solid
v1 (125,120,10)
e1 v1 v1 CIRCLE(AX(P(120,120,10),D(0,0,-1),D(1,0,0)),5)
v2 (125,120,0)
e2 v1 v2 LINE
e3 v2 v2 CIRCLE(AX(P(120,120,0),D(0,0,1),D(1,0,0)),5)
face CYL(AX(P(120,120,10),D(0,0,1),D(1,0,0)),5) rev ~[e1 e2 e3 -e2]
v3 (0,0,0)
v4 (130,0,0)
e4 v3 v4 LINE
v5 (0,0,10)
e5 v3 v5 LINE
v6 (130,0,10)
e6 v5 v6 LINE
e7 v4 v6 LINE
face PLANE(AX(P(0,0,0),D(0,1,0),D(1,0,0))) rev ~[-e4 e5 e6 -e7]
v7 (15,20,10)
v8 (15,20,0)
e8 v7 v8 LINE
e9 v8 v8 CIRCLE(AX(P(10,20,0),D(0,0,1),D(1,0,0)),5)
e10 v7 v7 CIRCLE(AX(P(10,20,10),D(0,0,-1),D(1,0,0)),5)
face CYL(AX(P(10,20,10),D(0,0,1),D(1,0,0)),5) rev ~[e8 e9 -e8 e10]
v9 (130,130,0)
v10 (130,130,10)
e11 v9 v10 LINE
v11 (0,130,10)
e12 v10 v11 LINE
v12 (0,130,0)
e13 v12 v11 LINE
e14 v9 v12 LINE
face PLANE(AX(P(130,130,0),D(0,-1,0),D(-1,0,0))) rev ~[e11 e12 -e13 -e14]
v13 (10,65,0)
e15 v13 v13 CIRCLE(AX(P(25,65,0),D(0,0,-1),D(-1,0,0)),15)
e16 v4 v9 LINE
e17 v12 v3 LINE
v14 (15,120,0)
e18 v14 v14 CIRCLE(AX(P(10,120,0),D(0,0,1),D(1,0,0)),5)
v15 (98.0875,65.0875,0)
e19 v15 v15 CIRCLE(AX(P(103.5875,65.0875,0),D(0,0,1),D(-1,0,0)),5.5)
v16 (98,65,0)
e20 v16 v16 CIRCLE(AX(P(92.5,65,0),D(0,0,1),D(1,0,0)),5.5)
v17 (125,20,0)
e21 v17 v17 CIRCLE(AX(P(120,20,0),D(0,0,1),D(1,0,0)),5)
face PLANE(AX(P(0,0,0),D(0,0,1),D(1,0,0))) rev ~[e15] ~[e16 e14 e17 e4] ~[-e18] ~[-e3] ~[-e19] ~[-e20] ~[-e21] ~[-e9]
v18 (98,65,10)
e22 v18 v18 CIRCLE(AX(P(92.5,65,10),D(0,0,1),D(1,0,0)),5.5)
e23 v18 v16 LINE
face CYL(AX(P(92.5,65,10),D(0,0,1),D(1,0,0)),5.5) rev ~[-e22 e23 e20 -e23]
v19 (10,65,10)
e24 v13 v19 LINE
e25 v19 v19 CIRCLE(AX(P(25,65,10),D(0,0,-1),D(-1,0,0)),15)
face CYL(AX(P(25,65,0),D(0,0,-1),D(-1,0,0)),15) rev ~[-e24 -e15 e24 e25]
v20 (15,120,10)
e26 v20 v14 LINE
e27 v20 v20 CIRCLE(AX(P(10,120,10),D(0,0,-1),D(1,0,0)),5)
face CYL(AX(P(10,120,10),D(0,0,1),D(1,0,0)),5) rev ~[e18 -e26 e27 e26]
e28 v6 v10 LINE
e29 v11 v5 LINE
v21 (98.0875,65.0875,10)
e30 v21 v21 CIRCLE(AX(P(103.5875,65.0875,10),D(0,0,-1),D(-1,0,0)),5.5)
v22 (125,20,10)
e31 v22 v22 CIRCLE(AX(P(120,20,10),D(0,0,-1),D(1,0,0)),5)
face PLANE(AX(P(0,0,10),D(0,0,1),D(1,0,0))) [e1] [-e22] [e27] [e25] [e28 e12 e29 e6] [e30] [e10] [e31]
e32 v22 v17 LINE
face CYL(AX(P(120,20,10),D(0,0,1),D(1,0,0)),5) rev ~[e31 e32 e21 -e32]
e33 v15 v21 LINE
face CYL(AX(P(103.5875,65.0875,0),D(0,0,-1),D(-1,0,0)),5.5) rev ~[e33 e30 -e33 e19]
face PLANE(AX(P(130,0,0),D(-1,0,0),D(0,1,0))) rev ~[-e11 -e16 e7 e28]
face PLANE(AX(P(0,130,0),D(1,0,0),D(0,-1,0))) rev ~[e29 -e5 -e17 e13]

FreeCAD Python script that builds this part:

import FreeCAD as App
import Part
import Sketcher

V = App.Vector


def add_polygon(sketch, points):
    """Adds a closed chain of lines whose ends are joined by coincident constraints."""
    first, n = sketch.GeometryCount, len(points)
    for a, b in zip(points, points[1:] + points[:1]):
        sketch.addGeometry(Part.LineSegment(App.Vector(*a, 0), App.Vector(*b, 0)), False)
    for i in range(n):
        sketch.addConstraint(Sketcher.Constraint("Coincident", first + i, 2, first + (i + 1) % n, 1))

doc = App.newDocument("Part")
params = doc.addObject("Spreadsheet::Sheet", "Params")
for row, (alias, value) in enumerate([
    ("sketch1_width", "130 mm"),
    ("pad1_length", "10 mm"),
    ("sketch2_diameter", "10 mm"),
    ("pocket1_length", "10 mm"),
    ("sketch3_diameter", "11 mm"),
    ("sketch4_diameter", "30 mm"),
    ("pocket3_length", "10 mm"),
    ("sketch5_diameter", "11 mm"),
    ("pocket4_length", "11 mm"),
], start=1):
    params.set(f"A{row}", alias)
    params.set(f"B{row}", "=" + value)
    params.setAlias(f"B{row}", alias)

body = doc.addObject("PartDesign::Body", "Body")

# Sketch on XY plane
sketch1 = doc.addObject("Sketcher::SketchObject", "Sketch")
body.addObject(sketch1)
sketch1.AttachmentSupport = (doc.XY_Plane, [""])
sketch1.MapMode = "FlatFace"
add_polygon(sketch1, [(0, 130), (0, 0), (130, 0), (130, 130)])  # lines 0-3
sketch1.addConstraint(Sketcher.Constraint("Vertical", 0))
sketch1.addConstraint(Sketcher.Constraint("Horizontal", 1))
sketch1.addConstraint(Sketcher.Constraint("Vertical", 2))
sketch1.addConstraint(Sketcher.Constraint("Horizontal", 3))
sketch1.addConstraint(Sketcher.Constraint("Coincident", 0, 2, -1, 1))
sketch1.addConstraint(Sketcher.Constraint("Equal", 3, 0))
sketch1.addConstraint(Sketcher.Constraint("DistanceX", 1, 1, 1, 2, 130.0))
sketch1.setExpression("Constraints[10]", "Params.sketch1_width")
pad1 = doc.addObject("PartDesign::Pad", "Pad")
body.addObject(pad1)
pad1.Profile = sketch1
pad1.setExpression("Length", "Params.pad1_length")

# Sketch on XY plane
sketch2 = doc.addObject("Sketcher::SketchObject", "Sketch001")
body.addObject(sketch2)
sketch2.AttachmentSupport = (doc.XY_Plane, [""])
sketch2.MapMode = "FlatFace"
sketch2.AttachmentOffset = App.Placement(V(0, 0, 10), App.Rotation())
sketch2.addGeometry(Part.Circle(V(120, 120, 0), V(0, 0, 1), 5), False)
sketch2.addGeometry(Part.Circle(V(10, 120, 0), V(0, 0, 1), 5), False)
sketch2.addGeometry(Part.Circle(V(120, 20, 0), V(0, 0, 1), 5), False)
sketch2.addGeometry(Part.Circle(V(10, 20, 0), V(0, 0, 1), 5), False)
sketch2.addConstraint(Sketcher.Constraint("Equal", 0, 1))
sketch2.addConstraint(Sketcher.Constraint("Equal", 1, 2))
sketch2.addConstraint(Sketcher.Constraint("Equal", 2, 3))
sketch2.addConstraint(Sketcher.Constraint("Horizontal", 0, 3, 1, 3))
sketch2.addConstraint(Sketcher.Constraint("Horizontal", 2, 3, 3, 3))
sketch2.addConstraint(Sketcher.Constraint("Vertical", 0, 3, 2, 3))
sketch2.addConstraint(Sketcher.Constraint("Vertical", 1, 3, 3, 3))
sketch2.addConstraint(Sketcher.Constraint("Diameter", 0, 10.0))
sketch2.addConstraint(Sketcher.Constraint("DistanceX", -1, 1, 0, 3, 120.0))
sketch2.addConstraint(Sketcher.Constraint("DistanceY", -1, 1, 0, 3, 120.0))
sketch2.addConstraint(Sketcher.Constraint("DistanceX", -1, 1, 1, 3, 10.0))
sketch2.addConstraint(Sketcher.Constraint("DistanceY", -1, 1, 2, 3, 20.0))
sketch2.setExpression("Constraints[7]", "Params.sketch2_diameter")
pocket1 = doc.addObject("PartDesign::Pocket", "Pocket")
body.addObject(pocket1)
pocket1.Profile = sketch2
pocket1.setExpression("Length", "Params.pocket1_length")

# Sketch on XY plane
sketch3 = doc.addObject("Sketcher::SketchObject", "Sketch002")
body.addObject(sketch3)
sketch3.AttachmentSupport = (doc.XY_Plane, [""])
sketch3.MapMode = "FlatFace"
sketch3.AttachmentOffset = App.Placement(V(0, 0, 10), App.Rotation())
sketch3.addGeometry(Part.Circle(V(92, 65, 0), V(0, 0, 1), 6), False)
sketch3.addConstraint(Sketcher.Constraint("Diameter", 0, 11.0))
sketch3.addConstraint(Sketcher.Constraint("DistanceY", -1, 1, 0, 3, 65.0))
sketch3.addConstraint(Sketcher.Constraint("DistanceX", -1, 1, 0, 3, 92.5))
sketch3.setExpression("Constraints[0]", "Params.sketch3_diameter")
pocket2 = doc.addObject("PartDesign::Pocket", "Pocket001")
body.addObject(pocket2)
pocket2.Profile = sketch3
pocket2.Type = "ThroughAll"

# Sketch on XY plane
sketch4 = doc.addObject("Sketcher::SketchObject", "Sketch003")
body.addObject(sketch4)
sketch4.AttachmentSupport = (doc.XY_Plane, [""])
sketch4.MapMode = "FlatFace"
sketch4.addGeometry(Part.Circle(V(25, 65, 0), V(0, 0, 1), 15), False)
sketch4.addConstraint(Sketcher.Constraint("Diameter", 0, 30.0))
sketch4.addConstraint(Sketcher.Constraint("DistanceX", -1, 1, 0, 3, 25.0))
sketch4.addConstraint(Sketcher.Constraint("DistanceY", -1, 1, 0, 3, 65.0))
sketch4.setExpression("Constraints[0]", "Params.sketch4_diameter")
pocket3 = doc.addObject("PartDesign::Pocket", "Pocket002")
body.addObject(pocket3)
pocket3.Profile = sketch4
pocket3.setExpression("Length", "Params.pocket3_length")
pocket3.Reversed = True

# Sketch on XY plane
sketch5 = doc.addObject("Sketcher::SketchObject", "Sketch004")
body.addObject(sketch5)
sketch5.AttachmentSupport = (doc.XY_Plane, [""])
sketch5.MapMode = "FlatFace"
sketch5.addGeometry(Part.Circle(V(104, 65, 0), V(0, 0, 1), 6), False)
sketch5.addConstraint(Sketcher.Constraint("Diameter", 0, 11.0))
sketch5.addConstraint(Sketcher.Constraint("DistanceX", -1, 1, 0, 3, 103.5875))
sketch5.addConstraint(Sketcher.Constraint("DistanceY", -1, 1, 0, 3, 65.0875))
sketch5.setExpression("Constraints[0]", "Params.sketch5_diameter")
pocket4 = doc.addObject("PartDesign::Pocket", "Pocket003")
body.addObject(pocket4)
pocket4.Profile = sketch5
pocket4.setExpression("Length", "Params.pocket4_length")
pocket4.Reversed = True

doc.recompute()
